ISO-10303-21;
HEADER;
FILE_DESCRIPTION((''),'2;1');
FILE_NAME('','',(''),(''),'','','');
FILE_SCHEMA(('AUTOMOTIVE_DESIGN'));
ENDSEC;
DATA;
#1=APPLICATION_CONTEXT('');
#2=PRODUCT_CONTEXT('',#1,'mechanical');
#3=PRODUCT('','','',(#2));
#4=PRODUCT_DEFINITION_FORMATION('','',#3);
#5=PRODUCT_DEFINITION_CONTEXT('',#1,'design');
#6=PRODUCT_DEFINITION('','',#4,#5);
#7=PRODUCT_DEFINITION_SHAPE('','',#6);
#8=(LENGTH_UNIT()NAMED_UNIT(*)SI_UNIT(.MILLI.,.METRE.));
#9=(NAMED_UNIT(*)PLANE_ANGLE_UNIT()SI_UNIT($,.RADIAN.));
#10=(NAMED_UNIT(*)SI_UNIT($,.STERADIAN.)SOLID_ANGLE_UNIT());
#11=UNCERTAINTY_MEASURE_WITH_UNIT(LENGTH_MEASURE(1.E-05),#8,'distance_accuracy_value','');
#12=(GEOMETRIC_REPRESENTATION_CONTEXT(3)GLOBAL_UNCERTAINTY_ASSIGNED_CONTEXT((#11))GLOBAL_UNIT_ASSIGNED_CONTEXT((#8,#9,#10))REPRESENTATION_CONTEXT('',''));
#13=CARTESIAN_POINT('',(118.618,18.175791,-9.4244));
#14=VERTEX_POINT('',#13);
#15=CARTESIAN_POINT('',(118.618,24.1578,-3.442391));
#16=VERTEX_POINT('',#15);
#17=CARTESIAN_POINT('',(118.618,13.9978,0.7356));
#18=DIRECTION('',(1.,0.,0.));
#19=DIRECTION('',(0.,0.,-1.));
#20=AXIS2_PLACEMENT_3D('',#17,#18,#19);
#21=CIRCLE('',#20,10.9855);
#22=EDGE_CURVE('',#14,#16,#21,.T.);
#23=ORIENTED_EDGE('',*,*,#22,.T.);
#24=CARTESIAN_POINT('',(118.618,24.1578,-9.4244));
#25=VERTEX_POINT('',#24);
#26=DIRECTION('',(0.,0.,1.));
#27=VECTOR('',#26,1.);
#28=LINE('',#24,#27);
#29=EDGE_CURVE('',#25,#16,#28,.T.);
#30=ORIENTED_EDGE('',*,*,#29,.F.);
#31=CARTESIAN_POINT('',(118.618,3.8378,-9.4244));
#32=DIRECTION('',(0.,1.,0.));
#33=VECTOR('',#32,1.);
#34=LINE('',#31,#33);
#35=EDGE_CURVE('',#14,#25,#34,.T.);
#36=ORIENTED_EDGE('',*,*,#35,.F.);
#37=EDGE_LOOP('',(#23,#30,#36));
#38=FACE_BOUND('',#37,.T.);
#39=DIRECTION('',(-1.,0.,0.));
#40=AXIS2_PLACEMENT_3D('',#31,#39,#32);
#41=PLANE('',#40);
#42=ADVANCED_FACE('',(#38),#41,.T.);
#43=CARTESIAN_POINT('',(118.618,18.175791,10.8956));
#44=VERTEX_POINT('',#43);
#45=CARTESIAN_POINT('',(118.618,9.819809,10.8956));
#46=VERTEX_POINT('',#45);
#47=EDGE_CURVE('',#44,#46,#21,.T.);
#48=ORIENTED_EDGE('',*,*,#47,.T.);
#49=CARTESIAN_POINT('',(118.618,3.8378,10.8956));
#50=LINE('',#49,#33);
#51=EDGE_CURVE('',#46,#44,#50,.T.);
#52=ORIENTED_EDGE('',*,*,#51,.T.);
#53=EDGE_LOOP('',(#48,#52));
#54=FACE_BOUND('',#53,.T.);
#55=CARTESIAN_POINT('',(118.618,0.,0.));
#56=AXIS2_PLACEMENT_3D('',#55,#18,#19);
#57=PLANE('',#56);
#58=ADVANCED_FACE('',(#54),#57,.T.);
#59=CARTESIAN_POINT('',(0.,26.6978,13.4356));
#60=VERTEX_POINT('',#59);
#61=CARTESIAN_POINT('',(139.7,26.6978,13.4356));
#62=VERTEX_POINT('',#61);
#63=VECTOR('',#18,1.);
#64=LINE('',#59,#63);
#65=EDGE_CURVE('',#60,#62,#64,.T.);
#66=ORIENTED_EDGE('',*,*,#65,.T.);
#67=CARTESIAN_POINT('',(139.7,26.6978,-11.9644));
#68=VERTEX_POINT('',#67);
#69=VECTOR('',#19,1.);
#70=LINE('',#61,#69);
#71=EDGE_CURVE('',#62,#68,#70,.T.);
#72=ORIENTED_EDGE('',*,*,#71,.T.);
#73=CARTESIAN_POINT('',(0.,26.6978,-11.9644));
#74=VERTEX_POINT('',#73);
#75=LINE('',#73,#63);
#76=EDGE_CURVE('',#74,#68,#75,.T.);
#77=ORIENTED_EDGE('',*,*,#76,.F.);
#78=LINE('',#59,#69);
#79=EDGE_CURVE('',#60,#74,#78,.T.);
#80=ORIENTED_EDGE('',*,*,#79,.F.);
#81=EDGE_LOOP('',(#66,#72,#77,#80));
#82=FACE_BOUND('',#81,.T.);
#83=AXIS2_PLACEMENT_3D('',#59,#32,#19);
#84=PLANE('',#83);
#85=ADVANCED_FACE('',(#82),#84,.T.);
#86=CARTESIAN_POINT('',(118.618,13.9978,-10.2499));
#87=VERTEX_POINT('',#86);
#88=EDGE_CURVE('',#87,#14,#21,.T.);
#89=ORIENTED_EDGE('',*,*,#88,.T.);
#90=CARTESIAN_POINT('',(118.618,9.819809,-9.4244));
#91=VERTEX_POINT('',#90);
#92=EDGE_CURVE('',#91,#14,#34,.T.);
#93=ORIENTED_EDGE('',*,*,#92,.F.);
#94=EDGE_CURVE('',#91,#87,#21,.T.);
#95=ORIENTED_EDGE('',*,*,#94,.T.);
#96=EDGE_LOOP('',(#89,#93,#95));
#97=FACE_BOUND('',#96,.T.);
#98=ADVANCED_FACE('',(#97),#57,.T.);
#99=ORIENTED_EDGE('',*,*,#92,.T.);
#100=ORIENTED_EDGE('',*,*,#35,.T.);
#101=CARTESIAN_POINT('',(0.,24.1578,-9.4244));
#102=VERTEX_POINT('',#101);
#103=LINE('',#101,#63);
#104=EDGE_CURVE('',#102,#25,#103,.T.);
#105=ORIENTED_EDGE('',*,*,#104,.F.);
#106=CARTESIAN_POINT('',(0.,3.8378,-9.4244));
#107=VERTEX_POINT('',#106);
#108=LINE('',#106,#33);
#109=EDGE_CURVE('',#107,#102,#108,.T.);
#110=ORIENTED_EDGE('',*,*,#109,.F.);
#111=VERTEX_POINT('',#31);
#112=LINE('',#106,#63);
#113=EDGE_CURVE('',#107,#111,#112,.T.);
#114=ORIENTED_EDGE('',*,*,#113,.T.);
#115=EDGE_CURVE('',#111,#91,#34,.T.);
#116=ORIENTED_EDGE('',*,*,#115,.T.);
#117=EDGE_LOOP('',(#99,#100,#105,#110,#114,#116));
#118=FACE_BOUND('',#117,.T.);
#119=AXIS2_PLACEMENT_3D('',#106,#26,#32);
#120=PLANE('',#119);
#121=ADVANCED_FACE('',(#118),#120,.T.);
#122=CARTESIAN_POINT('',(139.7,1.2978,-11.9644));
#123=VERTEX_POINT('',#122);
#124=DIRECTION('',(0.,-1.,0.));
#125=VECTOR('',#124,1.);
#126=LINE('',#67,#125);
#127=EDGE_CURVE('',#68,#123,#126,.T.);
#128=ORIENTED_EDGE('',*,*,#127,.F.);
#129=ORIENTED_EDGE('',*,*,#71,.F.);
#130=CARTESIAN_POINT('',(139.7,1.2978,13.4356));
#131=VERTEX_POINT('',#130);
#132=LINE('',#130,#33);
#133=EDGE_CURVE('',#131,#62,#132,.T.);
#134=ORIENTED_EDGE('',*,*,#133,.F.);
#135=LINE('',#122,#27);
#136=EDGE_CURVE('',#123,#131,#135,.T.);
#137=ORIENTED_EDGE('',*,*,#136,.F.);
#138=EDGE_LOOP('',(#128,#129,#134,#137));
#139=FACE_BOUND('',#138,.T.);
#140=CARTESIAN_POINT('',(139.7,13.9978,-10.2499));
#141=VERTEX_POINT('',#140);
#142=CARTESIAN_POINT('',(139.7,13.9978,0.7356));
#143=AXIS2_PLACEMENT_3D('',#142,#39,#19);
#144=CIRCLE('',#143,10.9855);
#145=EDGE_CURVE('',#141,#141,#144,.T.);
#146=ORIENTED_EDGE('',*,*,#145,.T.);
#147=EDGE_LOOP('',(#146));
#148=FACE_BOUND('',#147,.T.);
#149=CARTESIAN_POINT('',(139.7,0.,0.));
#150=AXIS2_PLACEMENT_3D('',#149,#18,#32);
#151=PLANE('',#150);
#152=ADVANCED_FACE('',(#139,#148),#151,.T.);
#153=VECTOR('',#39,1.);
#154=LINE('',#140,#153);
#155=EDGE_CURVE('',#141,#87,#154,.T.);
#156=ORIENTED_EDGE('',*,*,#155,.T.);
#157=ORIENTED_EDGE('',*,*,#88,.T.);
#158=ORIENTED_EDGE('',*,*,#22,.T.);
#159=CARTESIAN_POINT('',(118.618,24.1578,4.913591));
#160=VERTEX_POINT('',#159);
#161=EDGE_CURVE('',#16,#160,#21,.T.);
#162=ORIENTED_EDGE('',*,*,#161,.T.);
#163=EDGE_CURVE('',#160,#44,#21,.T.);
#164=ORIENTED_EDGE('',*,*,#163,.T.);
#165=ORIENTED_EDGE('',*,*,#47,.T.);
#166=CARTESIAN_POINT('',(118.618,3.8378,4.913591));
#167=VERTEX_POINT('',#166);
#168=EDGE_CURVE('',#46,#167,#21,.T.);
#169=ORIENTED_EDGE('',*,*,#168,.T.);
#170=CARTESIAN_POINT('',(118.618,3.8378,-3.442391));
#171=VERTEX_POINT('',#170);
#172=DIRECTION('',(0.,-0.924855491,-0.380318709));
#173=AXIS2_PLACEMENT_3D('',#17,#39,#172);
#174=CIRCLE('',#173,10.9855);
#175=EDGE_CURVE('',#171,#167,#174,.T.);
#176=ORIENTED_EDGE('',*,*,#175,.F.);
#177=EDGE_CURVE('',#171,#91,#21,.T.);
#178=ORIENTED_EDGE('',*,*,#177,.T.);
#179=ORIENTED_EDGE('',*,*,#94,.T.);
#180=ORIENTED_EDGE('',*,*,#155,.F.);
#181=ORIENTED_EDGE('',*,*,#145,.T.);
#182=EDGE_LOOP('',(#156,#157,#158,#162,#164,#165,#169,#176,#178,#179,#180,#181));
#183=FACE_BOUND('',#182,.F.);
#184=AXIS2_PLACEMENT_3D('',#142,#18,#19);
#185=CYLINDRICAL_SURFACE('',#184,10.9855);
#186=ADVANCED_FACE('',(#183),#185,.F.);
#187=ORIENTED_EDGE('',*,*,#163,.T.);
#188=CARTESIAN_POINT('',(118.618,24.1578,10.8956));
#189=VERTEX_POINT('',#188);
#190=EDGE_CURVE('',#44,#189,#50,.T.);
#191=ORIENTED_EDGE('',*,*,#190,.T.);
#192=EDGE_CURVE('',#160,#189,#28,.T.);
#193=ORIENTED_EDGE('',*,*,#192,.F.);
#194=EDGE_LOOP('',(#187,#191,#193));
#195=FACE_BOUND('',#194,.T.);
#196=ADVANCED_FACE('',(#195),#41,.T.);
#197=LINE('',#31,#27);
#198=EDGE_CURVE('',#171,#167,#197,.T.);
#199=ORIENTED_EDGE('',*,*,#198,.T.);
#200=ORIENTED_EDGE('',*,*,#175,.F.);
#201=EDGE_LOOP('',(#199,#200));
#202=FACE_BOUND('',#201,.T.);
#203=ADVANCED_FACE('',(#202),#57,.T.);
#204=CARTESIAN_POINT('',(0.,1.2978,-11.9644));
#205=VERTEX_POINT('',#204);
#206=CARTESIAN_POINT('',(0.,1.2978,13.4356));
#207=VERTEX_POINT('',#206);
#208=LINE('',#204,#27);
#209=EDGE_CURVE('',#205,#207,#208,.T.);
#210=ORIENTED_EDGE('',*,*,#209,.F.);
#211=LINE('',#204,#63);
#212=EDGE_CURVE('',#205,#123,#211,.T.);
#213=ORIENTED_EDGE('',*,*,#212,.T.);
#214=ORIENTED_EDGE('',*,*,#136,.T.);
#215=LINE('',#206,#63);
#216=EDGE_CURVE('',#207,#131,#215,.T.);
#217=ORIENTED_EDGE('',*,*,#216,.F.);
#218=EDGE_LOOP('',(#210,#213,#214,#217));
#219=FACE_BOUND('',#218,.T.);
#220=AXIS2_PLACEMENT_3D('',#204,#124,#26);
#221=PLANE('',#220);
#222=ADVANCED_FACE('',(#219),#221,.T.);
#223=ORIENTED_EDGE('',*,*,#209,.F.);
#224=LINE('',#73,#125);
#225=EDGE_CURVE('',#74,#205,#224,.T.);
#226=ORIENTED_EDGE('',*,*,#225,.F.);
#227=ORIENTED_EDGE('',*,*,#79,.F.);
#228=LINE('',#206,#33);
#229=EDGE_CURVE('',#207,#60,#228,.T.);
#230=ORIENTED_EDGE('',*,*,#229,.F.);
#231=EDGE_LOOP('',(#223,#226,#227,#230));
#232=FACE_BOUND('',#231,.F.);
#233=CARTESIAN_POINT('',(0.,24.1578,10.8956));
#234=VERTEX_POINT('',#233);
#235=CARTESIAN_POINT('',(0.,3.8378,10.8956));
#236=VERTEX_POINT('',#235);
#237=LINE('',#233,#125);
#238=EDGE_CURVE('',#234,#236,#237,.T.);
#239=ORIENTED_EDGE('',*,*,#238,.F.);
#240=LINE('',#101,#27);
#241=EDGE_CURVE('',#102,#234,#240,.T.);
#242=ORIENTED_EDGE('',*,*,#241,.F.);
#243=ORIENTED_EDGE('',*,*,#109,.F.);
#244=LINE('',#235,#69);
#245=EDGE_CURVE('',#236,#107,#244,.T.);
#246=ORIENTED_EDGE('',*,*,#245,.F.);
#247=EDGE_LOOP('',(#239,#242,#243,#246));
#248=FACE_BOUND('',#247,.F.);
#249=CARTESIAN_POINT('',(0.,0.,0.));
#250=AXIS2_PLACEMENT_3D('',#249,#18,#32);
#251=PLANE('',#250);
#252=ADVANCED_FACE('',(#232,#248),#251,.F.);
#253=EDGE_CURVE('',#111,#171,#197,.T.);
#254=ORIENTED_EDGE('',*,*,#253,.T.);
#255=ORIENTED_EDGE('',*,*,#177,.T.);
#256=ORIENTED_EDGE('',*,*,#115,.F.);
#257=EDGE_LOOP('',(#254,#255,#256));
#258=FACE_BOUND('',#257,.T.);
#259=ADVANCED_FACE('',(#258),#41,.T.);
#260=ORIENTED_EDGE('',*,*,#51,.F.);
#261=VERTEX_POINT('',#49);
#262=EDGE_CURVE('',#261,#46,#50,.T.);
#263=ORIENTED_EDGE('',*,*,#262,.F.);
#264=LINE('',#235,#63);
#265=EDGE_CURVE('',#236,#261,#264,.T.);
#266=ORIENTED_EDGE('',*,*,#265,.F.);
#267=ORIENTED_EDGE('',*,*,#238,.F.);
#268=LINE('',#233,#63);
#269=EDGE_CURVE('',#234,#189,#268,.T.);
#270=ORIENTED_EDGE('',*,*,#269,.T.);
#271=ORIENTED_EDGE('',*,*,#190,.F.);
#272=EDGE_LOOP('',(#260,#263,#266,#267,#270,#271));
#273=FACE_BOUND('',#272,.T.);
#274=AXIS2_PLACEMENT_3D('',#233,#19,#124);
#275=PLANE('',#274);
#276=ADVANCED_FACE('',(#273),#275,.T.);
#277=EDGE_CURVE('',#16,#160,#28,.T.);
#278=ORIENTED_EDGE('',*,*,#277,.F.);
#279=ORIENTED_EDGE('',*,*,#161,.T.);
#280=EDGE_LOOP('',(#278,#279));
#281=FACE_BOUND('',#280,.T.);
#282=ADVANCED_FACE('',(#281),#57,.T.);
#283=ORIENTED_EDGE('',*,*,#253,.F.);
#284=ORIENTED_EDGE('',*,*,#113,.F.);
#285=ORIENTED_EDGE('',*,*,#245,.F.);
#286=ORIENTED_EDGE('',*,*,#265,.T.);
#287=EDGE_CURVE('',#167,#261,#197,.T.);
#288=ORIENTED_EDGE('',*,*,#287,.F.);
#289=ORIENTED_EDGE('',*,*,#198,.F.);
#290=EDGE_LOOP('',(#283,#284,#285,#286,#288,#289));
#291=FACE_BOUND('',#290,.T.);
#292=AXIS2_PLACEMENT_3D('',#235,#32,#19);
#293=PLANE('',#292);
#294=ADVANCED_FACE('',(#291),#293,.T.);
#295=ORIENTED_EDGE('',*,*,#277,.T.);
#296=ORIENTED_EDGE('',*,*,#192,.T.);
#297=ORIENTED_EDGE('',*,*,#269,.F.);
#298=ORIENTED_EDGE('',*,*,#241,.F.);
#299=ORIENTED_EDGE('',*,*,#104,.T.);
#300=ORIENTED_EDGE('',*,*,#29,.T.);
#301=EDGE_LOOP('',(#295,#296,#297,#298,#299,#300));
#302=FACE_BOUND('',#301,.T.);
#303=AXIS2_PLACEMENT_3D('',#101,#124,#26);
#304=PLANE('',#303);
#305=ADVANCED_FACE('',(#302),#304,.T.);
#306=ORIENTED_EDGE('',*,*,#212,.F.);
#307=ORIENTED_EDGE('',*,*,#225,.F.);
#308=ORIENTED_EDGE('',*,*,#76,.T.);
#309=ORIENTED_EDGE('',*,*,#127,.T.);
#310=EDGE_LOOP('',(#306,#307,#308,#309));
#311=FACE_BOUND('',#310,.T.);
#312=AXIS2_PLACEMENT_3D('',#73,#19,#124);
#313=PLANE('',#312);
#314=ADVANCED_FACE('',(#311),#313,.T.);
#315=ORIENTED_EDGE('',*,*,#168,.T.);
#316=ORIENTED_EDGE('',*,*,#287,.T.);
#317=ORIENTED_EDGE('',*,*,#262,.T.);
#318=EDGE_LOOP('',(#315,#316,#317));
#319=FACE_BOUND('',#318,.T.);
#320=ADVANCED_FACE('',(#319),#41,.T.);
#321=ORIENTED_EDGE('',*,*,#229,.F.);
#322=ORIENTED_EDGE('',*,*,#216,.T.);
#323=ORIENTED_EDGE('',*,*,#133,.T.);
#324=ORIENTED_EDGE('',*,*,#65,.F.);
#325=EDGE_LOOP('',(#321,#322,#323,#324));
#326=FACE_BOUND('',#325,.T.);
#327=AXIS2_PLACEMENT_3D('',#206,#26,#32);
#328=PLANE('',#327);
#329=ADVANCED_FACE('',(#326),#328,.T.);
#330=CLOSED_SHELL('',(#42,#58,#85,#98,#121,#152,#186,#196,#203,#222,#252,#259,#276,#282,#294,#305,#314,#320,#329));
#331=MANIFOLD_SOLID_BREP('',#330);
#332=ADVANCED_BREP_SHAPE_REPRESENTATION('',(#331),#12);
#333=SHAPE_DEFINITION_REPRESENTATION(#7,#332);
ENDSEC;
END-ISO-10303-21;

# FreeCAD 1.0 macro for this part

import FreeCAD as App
import Part
import Sketcher

V = App.Vector
Q = App.Units.Quantity


def add_polygon(sketch, points):
    """Adds a closed chain of lines whose ends are joined by coincident constraints."""
    first, n = sketch.GeometryCount, len(points)
    for a, b in zip(points, points[1:] + points[:1]):
        sketch.addGeometry(Part.LineSegment(App.Vector(*a, 0), App.Vector(*b, 0)), False)
    for i in range(n):
        sketch.addConstraint(Sketcher.Constraint("Coincident", first + i, 2, first + (i + 1) % n, 1))

doc = App.newDocument("Part")
params = doc.addObject("Spreadsheet::Sheet", "Params")
for row, (alias, value) in enumerate([
    ("sketch1_width", "1 in"),
    ("pad1_length", "5.5 in"),
    ("sketch2_height", "0.8 in"),
    ("sketch2_width", "0.83 in"),
    ("pad2_length", "0.8 in"),
    ("sketch3_diameter", "0.865 in"),
    ("pocket1_length", "0.83 in"),
], start=1):
    params.set(f"A{row}", alias)
    params.set(f"B{row}", "=" + value)
    params.setAlias(f"B{row}", alias)

body = doc.addObject("PartDesign::Body", "Body")

# Sketch on YZ plane
sketch1 = body.newObject("Sketcher::SketchObject", "Sketch")
sketch1.AttachmentSupport = (doc.getObject("YZ_Plane"), [""])
sketch1.MapMode = "FlatFace"
add_polygon(sketch1, [(27, 13), (1, 13), (1, -12), (27, -12)])  # lines 0-3
add_polygon(sketch1, [(24, 11), (24, -9), (4, -9), (4, 11)])  # lines 4-7
sketch1.addConstraint([
    Sketcher.Constraint("Horizontal", 0),
    Sketcher.Constraint("Vertical", 1),
    Sketcher.Constraint("Horizontal", 2),
    Sketcher.Constraint("Vertical", 3),
    Sketcher.Constraint("Vertical", 4),
    Sketcher.Constraint("Horizontal", 5),
    Sketcher.Constraint("Vertical", 6),
    Sketcher.Constraint("Horizontal", 7),
    Sketcher.Constraint("Equal", 2, 1),
    Sketcher.Constraint("Equal", 7, 4),
    Sketcher.Constraint("DistanceX", 0, 2, 0, 1, Q("1 in")),
    Sketcher.Constraint("DistanceX", 4, 2, 2, 2, Q("0.1 in")),
    Sketcher.Constraint("DistanceY", 2, 2, 4, 2, Q("0.1 in")),
    Sketcher.Constraint("DistanceX", 1, 2, 5, 2, Q("0.1 in")),
    Sketcher.Constraint("DistanceX", -1, 1, 0, 2, Q("0.0511 in")),
    Sketcher.Constraint("DistanceY", -1, 1, 0, 2, Q("13.4356 mm")),
])
sketch1.setExpression("Constraints[18]", "Params.sketch1_width")
pad1 = body.newObject("PartDesign::Pad", "Pad")
pad1.Profile = sketch1
pad1.setExpression("Length", "Params.pad1_length")

# Sketch on XY plane
sketch2 = body.newObject("Sketcher::SketchObject", "Sketch001")
sketch2.AttachmentSupport = (doc.getObject("XY_Plane"), [""])
sketch2.MapMode = "FlatFace"
sketch2.AttachmentOffset = App.Placement(V(0, 0, -9.4244), App.Rotation())
add_polygon(sketch2, [(119, 24), (119, 4), (140, 4), (140, 24)])  # lines 0-3
sketch2.addConstraint([
    Sketcher.Constraint("Vertical", 0),
    Sketcher.Constraint("Horizontal", 1),
    Sketcher.Constraint("Vertical", 2),
    Sketcher.Constraint("Horizontal", 3),
    Sketcher.Constraint("DistanceY", 0, 2, 0, 1, Q("0.8 in")),
    Sketcher.Constraint("DistanceX", 1, 1, 1, 2, Q("0.83 in")),
    Sketcher.Constraint("DistanceX", -1, 1, 1, 2, Q("5.5 in")),
    Sketcher.Constraint("DistanceY", -1, 1, 0, 2, Q("0.1511 in")),
])
sketch2.setExpression("Constraints[8]", "Params.sketch2_height")
sketch2.setExpression("Constraints[9]", "Params.sketch2_width")
pad2 = body.newObject("PartDesign::Pad", "Pad001")
pad2.Profile = sketch2
pad2.setExpression("Length", "Params.pad2_length")

# Sketch on YZ plane
sketch3 = body.newObject("Sketcher::SketchObject", "Sketch002")
sketch3.AttachmentSupport = (doc.getObject("YZ_Plane"), [""])
sketch3.MapMode = "FlatFace"
sketch3.AttachmentOffset = App.Placement(V(0, 0, 5.5 * 25.4), App.Rotation())
sketch3.addGeometry(Part.Circle(V(14, 1, 0), V(0, 0, 1), 11), False)
sketch3.addConstraint([
    Sketcher.Constraint("Diameter", 0, Q("0.865 in")),
    Sketcher.Constraint("DistanceX", -1, 1, 0, 3, Q("0.5511 in")),
    Sketcher.Constraint("DistanceY", -1, 1, 0, 3, Q("0.7356 mm")),
])
sketch3.setExpression("Constraints[0]", "Params.sketch3_diameter")
pocket1 = body.newObject("PartDesign::Pocket", "Pocket")
pocket1.Profile = sketch3
pocket1.setExpression("Length", "Params.pocket1_length")

doc.recompute()
